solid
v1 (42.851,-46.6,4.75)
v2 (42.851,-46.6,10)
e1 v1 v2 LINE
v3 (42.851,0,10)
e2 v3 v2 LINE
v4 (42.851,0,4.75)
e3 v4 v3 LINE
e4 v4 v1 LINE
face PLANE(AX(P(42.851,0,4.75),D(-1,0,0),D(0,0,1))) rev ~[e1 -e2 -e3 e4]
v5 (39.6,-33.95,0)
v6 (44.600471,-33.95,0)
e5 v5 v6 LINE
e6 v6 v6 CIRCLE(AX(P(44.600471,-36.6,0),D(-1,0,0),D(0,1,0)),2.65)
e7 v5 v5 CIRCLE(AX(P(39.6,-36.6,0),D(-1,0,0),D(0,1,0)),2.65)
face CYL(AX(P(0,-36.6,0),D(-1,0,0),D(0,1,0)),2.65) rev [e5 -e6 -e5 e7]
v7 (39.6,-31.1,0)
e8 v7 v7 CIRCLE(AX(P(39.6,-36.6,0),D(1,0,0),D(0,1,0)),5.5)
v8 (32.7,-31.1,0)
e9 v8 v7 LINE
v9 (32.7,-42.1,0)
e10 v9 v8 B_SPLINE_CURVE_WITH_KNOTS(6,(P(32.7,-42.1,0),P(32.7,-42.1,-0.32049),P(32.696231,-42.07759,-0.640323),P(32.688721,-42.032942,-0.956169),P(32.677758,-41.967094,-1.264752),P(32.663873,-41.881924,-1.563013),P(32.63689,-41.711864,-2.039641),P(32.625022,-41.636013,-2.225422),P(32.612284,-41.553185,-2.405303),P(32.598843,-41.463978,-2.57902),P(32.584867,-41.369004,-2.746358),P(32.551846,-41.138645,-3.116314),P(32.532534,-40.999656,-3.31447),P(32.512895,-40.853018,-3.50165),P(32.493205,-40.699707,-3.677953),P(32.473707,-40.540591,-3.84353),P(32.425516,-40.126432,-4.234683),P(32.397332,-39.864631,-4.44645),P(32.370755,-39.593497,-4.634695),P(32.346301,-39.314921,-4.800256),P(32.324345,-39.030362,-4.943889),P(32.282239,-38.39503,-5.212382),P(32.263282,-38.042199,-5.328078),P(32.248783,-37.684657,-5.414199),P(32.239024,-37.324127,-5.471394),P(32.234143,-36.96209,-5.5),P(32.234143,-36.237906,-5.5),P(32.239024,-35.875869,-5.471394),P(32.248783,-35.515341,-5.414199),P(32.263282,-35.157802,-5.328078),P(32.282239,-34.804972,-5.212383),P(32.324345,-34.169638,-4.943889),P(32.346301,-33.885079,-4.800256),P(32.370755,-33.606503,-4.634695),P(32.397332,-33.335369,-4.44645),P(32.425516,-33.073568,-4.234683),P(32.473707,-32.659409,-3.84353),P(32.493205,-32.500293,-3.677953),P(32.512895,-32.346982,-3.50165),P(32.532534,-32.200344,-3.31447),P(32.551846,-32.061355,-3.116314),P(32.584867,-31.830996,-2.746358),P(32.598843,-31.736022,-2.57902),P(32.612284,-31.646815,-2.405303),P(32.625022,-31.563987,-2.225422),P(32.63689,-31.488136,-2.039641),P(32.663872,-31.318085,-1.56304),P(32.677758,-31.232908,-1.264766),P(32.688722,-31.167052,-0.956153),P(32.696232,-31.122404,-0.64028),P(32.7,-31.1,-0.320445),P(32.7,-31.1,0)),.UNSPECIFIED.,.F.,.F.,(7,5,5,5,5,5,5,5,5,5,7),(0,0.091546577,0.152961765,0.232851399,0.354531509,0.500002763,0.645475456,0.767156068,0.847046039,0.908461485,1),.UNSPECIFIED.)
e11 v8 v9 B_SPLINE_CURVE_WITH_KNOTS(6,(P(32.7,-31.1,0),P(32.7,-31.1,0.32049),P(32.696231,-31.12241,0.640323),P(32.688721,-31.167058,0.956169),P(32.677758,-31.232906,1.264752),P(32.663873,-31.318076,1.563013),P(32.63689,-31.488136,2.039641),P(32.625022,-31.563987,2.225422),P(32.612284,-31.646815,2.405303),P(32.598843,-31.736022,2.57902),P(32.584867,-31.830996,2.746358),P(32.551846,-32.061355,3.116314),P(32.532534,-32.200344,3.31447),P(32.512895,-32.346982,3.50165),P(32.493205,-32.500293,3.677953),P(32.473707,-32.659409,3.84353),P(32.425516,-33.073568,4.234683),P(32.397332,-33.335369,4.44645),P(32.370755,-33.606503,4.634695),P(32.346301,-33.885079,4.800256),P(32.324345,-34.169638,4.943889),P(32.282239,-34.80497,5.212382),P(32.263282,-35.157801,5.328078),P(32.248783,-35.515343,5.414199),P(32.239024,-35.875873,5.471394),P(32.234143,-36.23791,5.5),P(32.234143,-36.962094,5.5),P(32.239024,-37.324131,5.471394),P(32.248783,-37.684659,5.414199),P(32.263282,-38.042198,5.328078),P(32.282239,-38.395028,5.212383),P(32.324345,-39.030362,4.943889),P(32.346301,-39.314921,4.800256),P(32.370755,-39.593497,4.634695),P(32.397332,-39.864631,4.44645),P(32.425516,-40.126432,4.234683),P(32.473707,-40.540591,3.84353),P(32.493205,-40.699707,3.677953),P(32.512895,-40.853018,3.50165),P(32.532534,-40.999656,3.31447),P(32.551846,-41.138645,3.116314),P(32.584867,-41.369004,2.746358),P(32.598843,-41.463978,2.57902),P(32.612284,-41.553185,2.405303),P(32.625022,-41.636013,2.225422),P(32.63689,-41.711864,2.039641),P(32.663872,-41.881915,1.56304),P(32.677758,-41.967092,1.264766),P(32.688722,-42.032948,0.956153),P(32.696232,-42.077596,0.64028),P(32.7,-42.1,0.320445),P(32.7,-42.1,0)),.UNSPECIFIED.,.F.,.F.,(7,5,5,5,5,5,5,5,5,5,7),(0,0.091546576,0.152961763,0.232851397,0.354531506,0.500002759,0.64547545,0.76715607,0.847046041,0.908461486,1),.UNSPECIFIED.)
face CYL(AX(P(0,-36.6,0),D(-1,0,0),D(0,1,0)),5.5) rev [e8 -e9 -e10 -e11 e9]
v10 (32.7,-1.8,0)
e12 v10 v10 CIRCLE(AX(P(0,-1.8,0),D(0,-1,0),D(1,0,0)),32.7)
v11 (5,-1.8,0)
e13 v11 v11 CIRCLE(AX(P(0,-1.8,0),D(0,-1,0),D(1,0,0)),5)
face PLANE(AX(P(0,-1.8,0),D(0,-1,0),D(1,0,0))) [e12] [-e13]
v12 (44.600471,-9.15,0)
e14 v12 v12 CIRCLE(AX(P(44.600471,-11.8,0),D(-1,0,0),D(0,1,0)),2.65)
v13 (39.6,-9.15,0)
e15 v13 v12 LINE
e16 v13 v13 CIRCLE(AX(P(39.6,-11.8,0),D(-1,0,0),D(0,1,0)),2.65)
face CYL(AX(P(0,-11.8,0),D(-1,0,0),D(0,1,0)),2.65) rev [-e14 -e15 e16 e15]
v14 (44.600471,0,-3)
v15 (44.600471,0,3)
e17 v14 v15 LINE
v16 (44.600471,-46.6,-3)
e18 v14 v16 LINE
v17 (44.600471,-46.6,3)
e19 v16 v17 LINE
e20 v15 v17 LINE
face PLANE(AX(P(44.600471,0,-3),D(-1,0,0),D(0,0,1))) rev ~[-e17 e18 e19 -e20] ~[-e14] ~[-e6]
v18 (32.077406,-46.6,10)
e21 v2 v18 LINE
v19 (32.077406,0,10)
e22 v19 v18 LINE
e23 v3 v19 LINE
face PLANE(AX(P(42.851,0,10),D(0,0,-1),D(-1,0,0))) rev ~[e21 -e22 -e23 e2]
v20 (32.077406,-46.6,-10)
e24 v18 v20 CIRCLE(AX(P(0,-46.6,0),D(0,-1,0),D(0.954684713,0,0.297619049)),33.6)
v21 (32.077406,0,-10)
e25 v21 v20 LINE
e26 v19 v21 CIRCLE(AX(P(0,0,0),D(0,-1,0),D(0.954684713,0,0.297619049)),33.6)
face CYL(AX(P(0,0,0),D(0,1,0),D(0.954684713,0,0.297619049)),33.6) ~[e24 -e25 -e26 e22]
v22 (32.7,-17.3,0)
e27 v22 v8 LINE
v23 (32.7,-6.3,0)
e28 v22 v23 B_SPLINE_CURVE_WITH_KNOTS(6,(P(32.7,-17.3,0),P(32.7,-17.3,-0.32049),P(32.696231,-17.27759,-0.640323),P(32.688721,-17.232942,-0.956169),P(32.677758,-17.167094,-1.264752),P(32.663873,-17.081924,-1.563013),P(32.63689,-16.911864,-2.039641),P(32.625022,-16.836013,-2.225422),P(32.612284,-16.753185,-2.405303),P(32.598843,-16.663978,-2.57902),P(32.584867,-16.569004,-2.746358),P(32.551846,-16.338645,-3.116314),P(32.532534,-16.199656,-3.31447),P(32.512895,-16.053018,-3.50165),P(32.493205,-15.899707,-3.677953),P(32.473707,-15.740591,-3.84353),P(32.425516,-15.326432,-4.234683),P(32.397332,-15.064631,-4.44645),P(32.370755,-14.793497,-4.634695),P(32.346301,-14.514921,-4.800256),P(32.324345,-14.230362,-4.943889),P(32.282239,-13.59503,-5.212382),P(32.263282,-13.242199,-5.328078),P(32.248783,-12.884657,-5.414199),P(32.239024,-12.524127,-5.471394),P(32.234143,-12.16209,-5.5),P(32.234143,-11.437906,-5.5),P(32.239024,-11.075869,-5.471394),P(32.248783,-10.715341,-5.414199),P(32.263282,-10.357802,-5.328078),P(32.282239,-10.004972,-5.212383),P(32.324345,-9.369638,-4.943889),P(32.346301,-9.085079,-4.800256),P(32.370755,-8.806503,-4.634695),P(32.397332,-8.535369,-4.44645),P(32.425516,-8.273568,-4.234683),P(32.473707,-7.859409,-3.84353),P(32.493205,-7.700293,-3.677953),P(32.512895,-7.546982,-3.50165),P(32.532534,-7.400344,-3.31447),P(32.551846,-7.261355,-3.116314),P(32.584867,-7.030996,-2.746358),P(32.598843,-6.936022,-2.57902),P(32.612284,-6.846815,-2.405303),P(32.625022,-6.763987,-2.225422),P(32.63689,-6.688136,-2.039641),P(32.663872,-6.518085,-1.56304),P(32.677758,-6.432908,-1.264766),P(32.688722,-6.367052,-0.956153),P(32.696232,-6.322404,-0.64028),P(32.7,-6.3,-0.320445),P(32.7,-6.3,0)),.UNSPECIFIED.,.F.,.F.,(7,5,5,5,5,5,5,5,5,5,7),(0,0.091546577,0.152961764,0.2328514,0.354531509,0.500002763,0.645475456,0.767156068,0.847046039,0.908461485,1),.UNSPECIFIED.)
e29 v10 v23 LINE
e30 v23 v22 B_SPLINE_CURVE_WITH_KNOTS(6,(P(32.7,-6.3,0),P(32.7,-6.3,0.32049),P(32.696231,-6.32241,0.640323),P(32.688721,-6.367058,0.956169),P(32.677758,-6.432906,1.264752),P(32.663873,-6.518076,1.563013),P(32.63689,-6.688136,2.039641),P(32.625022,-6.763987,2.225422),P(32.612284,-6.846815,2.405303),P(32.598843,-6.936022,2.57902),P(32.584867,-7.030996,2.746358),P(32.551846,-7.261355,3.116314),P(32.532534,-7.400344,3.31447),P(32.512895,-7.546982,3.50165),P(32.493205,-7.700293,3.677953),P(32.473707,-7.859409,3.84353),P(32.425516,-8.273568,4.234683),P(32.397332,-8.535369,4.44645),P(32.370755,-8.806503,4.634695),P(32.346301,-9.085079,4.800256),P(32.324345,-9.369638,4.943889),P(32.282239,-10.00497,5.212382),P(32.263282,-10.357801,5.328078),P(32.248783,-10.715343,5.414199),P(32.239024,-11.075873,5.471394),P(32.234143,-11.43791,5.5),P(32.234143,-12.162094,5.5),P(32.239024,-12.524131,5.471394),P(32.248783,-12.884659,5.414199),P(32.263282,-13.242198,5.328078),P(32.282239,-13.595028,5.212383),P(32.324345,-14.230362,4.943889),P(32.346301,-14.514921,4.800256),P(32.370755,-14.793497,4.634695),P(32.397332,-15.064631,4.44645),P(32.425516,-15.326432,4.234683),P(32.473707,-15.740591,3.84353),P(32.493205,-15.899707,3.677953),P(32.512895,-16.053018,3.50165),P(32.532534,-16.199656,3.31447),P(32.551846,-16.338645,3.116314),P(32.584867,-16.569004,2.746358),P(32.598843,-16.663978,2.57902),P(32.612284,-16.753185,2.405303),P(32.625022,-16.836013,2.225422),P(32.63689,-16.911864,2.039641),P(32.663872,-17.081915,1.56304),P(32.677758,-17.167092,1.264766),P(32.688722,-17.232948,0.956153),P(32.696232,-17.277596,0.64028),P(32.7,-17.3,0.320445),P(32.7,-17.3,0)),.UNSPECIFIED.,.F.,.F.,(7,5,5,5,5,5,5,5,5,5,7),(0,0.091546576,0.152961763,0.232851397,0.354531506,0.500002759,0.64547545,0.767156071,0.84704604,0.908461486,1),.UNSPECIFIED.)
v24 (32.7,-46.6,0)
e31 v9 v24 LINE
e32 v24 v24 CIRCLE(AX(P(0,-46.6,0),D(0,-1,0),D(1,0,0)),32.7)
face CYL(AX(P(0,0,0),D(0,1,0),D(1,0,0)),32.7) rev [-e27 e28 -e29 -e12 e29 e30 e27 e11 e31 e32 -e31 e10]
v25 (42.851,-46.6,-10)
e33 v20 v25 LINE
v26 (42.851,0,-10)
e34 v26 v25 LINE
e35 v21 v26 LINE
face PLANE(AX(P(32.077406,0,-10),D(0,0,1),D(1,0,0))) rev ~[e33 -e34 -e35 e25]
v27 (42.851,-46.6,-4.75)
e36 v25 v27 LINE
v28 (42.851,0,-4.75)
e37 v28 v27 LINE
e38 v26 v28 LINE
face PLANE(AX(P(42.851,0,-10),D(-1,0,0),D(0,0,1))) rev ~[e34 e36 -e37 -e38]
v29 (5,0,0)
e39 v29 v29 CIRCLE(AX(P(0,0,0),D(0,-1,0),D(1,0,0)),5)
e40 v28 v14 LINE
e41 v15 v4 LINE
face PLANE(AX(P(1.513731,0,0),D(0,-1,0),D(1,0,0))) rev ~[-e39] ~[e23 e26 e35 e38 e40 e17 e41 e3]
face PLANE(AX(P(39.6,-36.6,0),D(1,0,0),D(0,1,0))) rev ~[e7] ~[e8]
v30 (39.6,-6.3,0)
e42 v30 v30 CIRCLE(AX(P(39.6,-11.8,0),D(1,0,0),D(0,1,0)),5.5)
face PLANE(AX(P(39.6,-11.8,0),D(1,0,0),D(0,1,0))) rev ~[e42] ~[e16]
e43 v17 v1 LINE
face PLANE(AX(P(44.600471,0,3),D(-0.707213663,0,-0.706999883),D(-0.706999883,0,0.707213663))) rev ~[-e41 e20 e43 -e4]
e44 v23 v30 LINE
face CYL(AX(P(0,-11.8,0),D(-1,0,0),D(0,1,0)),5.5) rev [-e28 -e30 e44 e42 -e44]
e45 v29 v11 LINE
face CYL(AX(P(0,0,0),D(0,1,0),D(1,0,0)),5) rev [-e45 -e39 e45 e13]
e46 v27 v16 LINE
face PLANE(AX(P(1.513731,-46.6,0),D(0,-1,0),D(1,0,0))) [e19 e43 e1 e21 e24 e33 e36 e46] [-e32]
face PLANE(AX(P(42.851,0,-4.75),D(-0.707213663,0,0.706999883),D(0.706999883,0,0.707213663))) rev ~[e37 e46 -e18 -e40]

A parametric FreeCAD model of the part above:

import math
import FreeCAD as App
import Part
import Sketcher
Q = App.Units.Quantity

doc = App.newDocument("Part")
body = doc.addObject("PartDesign::Body", "Body")

sketch1 = body.newObject("Sketcher::SketchObject", "Sketch")
sketch1.AttachmentSupport = (doc.getObject("XZ_Plane"), [""])
sketch1.MapMode = "FlatFace"
sketch1.addGeometry(Part.Circle(App.Vector(0, 0, 0), App.Vector(0, 0, 1), 33), False)
sketch1.addGeometry(Part.Circle(App.Vector(0, 0, 0), App.Vector(0, 0, 1), 5), False)
sketch1.addConstraint(Sketcher.Constraint("Coincident", 0, 3, -1, 1))
sketch1.addConstraint(Sketcher.Constraint("Coincident", 1, 3, -1, 1))
sketch1.addConstraint(Sketcher.Constraint("Diameter", 1, Q("10 mm")))
sketch1.addConstraint(Sketcher.Constraint("Diameter", 0, Q("65.4 mm")))
pad1 = body.newObject("PartDesign::Pad", "Pad")
pad1.Profile = sketch1
pad1.Length = 1.8

sketch2 = body.newObject("Sketcher::SketchObject", "Sketch001")
sketch2.AttachmentSupport = (doc.getObject("XZ_Plane"), [""])
sketch2.MapMode = "FlatFace"
sketch2.addGeometry(Part.ArcOfCircle(Part.Circle(App.Vector(0, 0, 0), App.Vector(0, 0, 1), 33.6), math.radians(17), math.radians(343)), False)
sketch2.addGeometry(Part.LineSegment(App.Vector(32.1, -10, 0), App.Vector(42.9, -10, 0)), False)
sketch2.addGeometry(Part.LineSegment(App.Vector(42.9, -10, 0), App.Vector(42.9, -4.8, 0)), False)
sketch2.addGeometry(Part.LineSegment(App.Vector(42.9, -4.8, 0), App.Vector(44.6, -3, 0)), False)
sketch2.addGeometry(Part.LineSegment(App.Vector(44.6, -3, 0), App.Vector(44.6, 3, 0)), False)
sketch2.addGeometry(Part.LineSegment(App.Vector(44.6, 3, 0), App.Vector(42.9, 4.8, 0)), False)
sketch2.addGeometry(Part.LineSegment(App.Vector(42.9, 4.8, 0), App.Vector(42.9, 10, 0)), False)
sketch2.addGeometry(Part.LineSegment(App.Vector(42.9, 10, 0), App.Vector(32.1, 10, 0)), False)
sketch2.addGeometry(Part.Circle(App.Vector(0, 0, 0), App.Vector(0, 0, 1), 32.7), False)
sketch2.addConstraint(Sketcher.Constraint("Coincident", 0, 2, 1, 1))
sketch2.addConstraint(Sketcher.Constraint("Coincident", 1, 2, 2, 1))
sketch2.addConstraint(Sketcher.Constraint("Coincident", 2, 2, 3, 1))
sketch2.addConstraint(Sketcher.Constraint("Coincident", 3, 2, 4, 1))
sketch2.addConstraint(Sketcher.Constraint("Coincident", 4, 2, 5, 1))
sketch2.addConstraint(Sketcher.Constraint("Coincident", 5, 2, 6, 1))
sketch2.addConstraint(Sketcher.Constraint("Coincident", 6, 2, 7, 1))
sketch2.addConstraint(Sketcher.Constraint("Coincident", 7, 2, 0, 1))
sketch2.addConstraint(Sketcher.Constraint("Horizontal", 1))
sketch2.addConstraint(Sketcher.Constraint("Vertical", 2))
sketch2.addConstraint(Sketcher.Constraint("Vertical", 4))
sketch2.addConstraint(Sketcher.Constraint("Vertical", 6))
sketch2.addConstraint(Sketcher.Constraint("Horizontal", 7))
sketch2.addConstraint(Sketcher.Constraint("Coincident", 0, 3, -1, 1))
sketch2.addConstraint(Sketcher.Constraint("Coincident", 8, 3, -1, 1))
sketch2.addConstraint(Sketcher.Constraint("Symmetric", 2, 2, 5, 2, -1))
sketch2.addConstraint(Sketcher.Constraint("Vertical", 0, 2, 7, 2))
sketch2.addConstraint(Sketcher.Constraint("Equal", 3, 5))
sketch2.addConstraint(Sketcher.Constraint("Diameter", 8, Q("65.4 mm")))
sketch2.addConstraint(Sketcher.Constraint("Radius", 0, Q("33.6 mm")))
sketch2.addConstraint(Sketcher.Constraint("DistanceY", 4, 1, 4, 2, Q("6 mm")))
sketch2.addConstraint(Sketcher.Constraint("DistanceY", 0, 2, -1, 1, Q("10 mm")))
sketch2.addConstraint(Sketcher.Constraint("DistanceY", 2, 1, 2, 2, Q("5.25 mm")))
sketch2.addConstraint(Sketcher.Constraint("DistanceX", -1, 1, 1, 2, Q("42.851 mm")))
sketch2.addConstraint(Sketcher.Constraint("Distance", 3, Q("2.4745 mm")))
pad2 = body.newObject("PartDesign::Pad", "Pad001")
pad2.Profile = sketch2
pad2.Length = 46.6

sketch3 = body.newObject("Sketcher::SketchObject", "Sketch002")
sketch3.AttachmentSupport = (doc.getObject("YZ_Plane"), [""])
sketch3.MapMode = "FlatFace"
sketch3.addGeometry(Part.Circle(App.Vector(-11.8, 0, 0), App.Vector(0, 0, 1), 2.6), False)
sketch3.addGeometry(Part.Circle(App.Vector(-36.6, 0, 0), App.Vector(0, 0, 1), 2.6), False)
sketch3.addConstraint(Sketcher.Constraint("Equal", 0, 1))
sketch3.addConstraint(Sketcher.Constraint("PointOnObject", 0, 3, -1))
sketch3.addConstraint(Sketcher.Constraint("PointOnObject", 1, 3, -1))
sketch3.addConstraint(Sketcher.Constraint("Diameter", 0, Q("5.3 mm")))
sketch3.addConstraint(Sketcher.Constraint("DistanceX", 0, 3, -1, 1, Q("11.8 mm")))
sketch3.addConstraint(Sketcher.Constraint("DistanceX", 1, 3, -1, 1, Q("36.6 mm")))
pocket1 = body.newObject("PartDesign::Pocket", "Pocket")
pocket1.Profile = sketch3
pocket1.Type = "ThroughAll"
pocket1.Reversed = True

sketch4 = body.newObject("Sketcher::SketchObject", "Sketch003")
sketch4.AttachmentSupport = (doc.getObject("YZ_Plane"), [""])
sketch4.MapMode = "FlatFace"
sketch4.addGeometry(Part.Circle(App.Vector(-12, 0, 0), App.Vector(0, 0, 1), 6), False)
sketch4.addGeometry(Part.Circle(App.Vector(-37, 0, 0), App.Vector(0, 0, 1), 6), False)
sketch4.addConstraint(Sketcher.Constraint("Equal", 0, 1))
sketch4.addConstraint(Sketcher.Constraint("PointOnObject", 0, 3, -1))
sketch4.addConstraint(Sketcher.Constraint("PointOnObject", 1, 3, -1))
sketch4.addConstraint(Sketcher.Constraint("Diameter", 0, Q("11 mm")))
sketch4.addConstraint(Sketcher.Constraint("DistanceX", 0, 3, -1, 1, Q("11.8 mm")))
sketch4.addConstraint(Sketcher.Constraint("DistanceX", 1, 3, -1, 1, Q("36.6 mm")))
pocket2 = body.newObject("PartDesign::Pocket", "Pocket001")
pocket2.Profile = sketch4
pocket2.Length = 39.6
pocket2.Reversed = True

doc.recompute()
